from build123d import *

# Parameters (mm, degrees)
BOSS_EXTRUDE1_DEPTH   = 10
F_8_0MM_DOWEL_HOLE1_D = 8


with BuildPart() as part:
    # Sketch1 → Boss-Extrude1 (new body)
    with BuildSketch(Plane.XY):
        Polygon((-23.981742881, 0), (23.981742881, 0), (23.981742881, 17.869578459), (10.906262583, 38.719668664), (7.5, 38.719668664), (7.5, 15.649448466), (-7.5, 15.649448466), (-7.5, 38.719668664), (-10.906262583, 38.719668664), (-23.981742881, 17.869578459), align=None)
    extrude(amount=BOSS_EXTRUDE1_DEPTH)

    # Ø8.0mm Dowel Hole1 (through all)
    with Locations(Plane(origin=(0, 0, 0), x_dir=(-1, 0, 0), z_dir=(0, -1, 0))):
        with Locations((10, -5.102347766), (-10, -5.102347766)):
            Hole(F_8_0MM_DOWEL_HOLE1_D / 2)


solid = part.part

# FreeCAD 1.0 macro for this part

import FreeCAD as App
import Part
import Sketcher
from FreeCAD import Vector


def add_polygon(sketch, points):
    """Adds a closed chain of lines whose ends are joined by coincident constraints."""
    first, n = sketch.GeometryCount, len(points)
    for a, b in zip(points, points[1:] + points[:1]):
        sketch.addGeometry(Part.LineSegment(App.Vector(*a, 0), App.Vector(*b, 0)), False)
    for i in range(n):
        sketch.addConstraint(Sketcher.Constraint("Coincident", first + i, 2, first + (i + 1) % n, 1))

doc = App.newDocument("Part")
body = doc.addObject("PartDesign::Body", "Body")

sketch1 = body.newObject("Sketcher::SketchObject", "Sketch")
sketch1.AttachmentSupport = (doc.getObject("XY_Plane"), [""])
sketch1.MapMode = "FlatFace"
add_polygon(sketch1, [(-24, 0), (24, 0), (24, 17.9), (10.9, 38.7), (7.5, 38.7), (7.5, 15.6), (-7.5, 15.6), (-7.5, 38.7), (-10.9, 38.7), (-24, 17.9)])
sketch1.addConstraint([
    Sketcher.Constraint("Horizontal", 0),
    Sketcher.Constraint("Vertical", 1),
    Sketcher.Constraint("Horizontal", 3),
    Sketcher.Constraint("Vertical", 4),
    Sketcher.Constraint("Horizontal", 5),
    Sketcher.Constraint("Vertical", 6),
    Sketcher.Constraint("Horizontal", 7),
    Sketcher.Constraint("Vertical", 9),
    Sketcher.Constraint("Symmetric", 0, 2, 9, 2, -1, 1),
    Sketcher.Constraint("Symmetric", 3, 2, 6, 2, -2),
    Sketcher.Constraint("Horizontal", 1, 2, 8, 2),
    Sketcher.Constraint("Equal", 3, 7),
    Sketcher.Constraint("DistanceX", 5, 2, 5, 1, 15.0),
    Sketcher.Constraint("DistanceY", 1, 1, 1, 2, 17.869578),
    Sketcher.Constraint("DistanceY", 4, 2, 4, 1, 23.07022),
    Sketcher.Constraint("Distance", 2, 24.61086),
    Sketcher.Constraint("DistanceX", 0, 1, 0, 2, 47.963486),
    Sketcher.Constraint("DistanceX", 3, 2, 3, 1, 3.406263),
])
pad1 = body.newObject("PartDesign::Pad", "Pad")
pad1.Profile = sketch1
pad1.Length = 10

sketch2 = body.newObject("Sketcher::SketchObject", "Sketch001")
sketch2.AttachmentSupport = (doc.getObject("XZ_Plane"), [""])
sketch2.MapMode = "FlatFace"
sketch2.addGeometry([
    Part.Circle(Vector(-10, 5.1, 0), Vector(0, 0, 1), 4),
    Part.Circle(Vector(10, 5.1, 0), Vector(0, 0, 1), 4),
], False)
sketch2.addConstraint([
    Sketcher.Constraint("Equal", 0, 1),
    Sketcher.Constraint("Symmetric", 0, 3, 1, 3, -2),
    Sketcher.Constraint("Diameter", 0, 8.0),
    Sketcher.Constraint("DistanceX", 0, 3, -1, 1, 10.0),
    Sketcher.Constraint("DistanceY", -1, 1, 0, 3, 5.102348),
])
doc.recompute()
hole = body.newObject("PartDesign::Hole", "Hole")
hole.Profile = sketch2
hole.ThreadType = "None"
hole.Diameter = 8
hole.DepthType = "ThroughAll"

doc.recompute()
